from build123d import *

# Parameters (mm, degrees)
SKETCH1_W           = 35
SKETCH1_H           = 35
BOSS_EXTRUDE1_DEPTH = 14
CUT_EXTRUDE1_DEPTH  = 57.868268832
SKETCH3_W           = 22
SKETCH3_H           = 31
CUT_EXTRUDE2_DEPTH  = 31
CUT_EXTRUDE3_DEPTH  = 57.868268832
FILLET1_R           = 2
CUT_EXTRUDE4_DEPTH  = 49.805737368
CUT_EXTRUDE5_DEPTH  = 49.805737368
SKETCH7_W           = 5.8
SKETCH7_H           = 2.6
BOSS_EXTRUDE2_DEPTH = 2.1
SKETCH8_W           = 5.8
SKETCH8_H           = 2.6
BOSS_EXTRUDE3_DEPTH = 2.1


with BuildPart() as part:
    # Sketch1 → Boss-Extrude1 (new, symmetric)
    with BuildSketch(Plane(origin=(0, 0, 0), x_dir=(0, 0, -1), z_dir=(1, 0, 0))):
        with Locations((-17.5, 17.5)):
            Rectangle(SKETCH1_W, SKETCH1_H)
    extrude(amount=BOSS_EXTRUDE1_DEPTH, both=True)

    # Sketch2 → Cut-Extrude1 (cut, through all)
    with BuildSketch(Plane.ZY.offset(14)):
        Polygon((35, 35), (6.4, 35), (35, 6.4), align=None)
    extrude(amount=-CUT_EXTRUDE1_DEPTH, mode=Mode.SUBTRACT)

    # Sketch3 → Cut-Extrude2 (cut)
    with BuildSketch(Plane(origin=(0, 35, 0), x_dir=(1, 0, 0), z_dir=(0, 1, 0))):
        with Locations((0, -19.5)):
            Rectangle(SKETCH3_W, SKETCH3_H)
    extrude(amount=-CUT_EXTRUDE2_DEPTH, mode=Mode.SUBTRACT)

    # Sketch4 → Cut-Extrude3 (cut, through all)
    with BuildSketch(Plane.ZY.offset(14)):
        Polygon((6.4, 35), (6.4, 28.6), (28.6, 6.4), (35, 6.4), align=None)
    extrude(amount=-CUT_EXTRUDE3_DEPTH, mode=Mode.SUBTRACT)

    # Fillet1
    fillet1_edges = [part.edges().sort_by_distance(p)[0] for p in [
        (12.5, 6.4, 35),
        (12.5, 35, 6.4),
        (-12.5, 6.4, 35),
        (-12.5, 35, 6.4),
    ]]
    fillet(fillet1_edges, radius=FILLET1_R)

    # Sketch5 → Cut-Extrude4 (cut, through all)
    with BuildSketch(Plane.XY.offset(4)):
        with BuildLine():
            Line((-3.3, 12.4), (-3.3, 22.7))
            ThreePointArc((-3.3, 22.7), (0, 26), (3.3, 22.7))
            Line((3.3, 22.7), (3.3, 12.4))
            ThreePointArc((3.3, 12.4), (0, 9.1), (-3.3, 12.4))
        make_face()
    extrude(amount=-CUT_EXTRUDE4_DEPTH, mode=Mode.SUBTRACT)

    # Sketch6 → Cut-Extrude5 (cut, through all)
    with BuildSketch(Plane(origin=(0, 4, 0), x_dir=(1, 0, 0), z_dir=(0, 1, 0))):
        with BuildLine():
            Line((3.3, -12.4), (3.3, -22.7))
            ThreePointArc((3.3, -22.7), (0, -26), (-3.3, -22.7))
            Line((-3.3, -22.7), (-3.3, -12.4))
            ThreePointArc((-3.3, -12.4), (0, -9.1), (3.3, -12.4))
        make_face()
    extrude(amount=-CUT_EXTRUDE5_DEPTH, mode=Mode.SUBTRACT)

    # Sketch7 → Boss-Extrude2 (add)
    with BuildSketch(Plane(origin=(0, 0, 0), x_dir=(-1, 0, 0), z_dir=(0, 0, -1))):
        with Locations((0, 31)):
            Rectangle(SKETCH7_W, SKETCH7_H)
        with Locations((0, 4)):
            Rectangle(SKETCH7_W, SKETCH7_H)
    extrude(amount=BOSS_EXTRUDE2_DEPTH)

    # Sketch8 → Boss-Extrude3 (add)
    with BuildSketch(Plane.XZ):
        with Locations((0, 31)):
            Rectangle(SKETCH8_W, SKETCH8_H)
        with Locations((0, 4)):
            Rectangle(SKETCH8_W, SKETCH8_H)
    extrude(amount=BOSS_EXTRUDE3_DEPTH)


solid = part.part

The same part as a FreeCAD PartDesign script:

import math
import FreeCAD as App
import Part
import Sketcher

V = App.Vector


def edges_at(feature, points):
    """Names of the edges that pass closest to the given points."""
    edges = feature.Shape.Edges
    near = lambda p: min(range(len(edges)), key=lambda i: edges[i].distToShape(Part.Vertex(*p))[0])
    return sorted({f"Edge{near(p) + 1}" for p in points})

doc = App.newDocument("Part")
params = doc.addObject("Spreadsheet::Sheet", "Params")
for row, (alias, value) in enumerate([
    ("sketch1_width", "35 mm"),
    ("pad1_length", "28 mm"),
    ("sketch2_width", "28.6 mm"),
    ("sketch3_width", "22 mm"),
    ("sketch3_height", "31 mm"),
    ("pocket2_length", "31 mm"),
    ("sketch4_width", "6.4 mm"),
    ("fillet_radius", "2 mm"),
    ("sketch5_radius", "3.3 mm"),
    ("sketch5_height", "10.3 mm"),
    ("sketch6_radius", "3.3 mm"),
    ("sketch6_height", "10.3 mm"),
    ("sketch7_width", "5.8 mm"),
    ("sketch7_height", "2.6 mm"),
    ("pad2_length", "2.1 mm"),
    ("sketch8_width", "5.8 mm"),
    ("sketch8_height", "2.6 mm"),
    ("pad3_length", "2.1 mm"),
], start=1):
    params.set(f"A{row}", alias)
    params.set(f"B{row}", "=" + value)
    params.setAlias(f"B{row}", alias)

body = doc.addObject("PartDesign::Body", "Body")

# Sketch on YZ plane
sketch1 = doc.addObject("Sketcher::SketchObject", "Sketch")
body.addObject(sketch1)
sketch1.AttachmentSupport = (doc.YZ_Plane, [""])
sketch1.MapMode = "FlatFace"
sketch1.addGeometry(Part.LineSegment(V(35, 35, 0), V(0, 35, 0)), False)
sketch1.addGeometry(Part.LineSegment(V(0, 35, 0), V(0, 0, 0)), False)
sketch1.addGeometry(Part.LineSegment(V(0, 0, 0), V(35, 0, 0)), False)
sketch1.addGeometry(Part.LineSegment(V(35, 0, 0), V(35, 35, 0)), False)
sketch1.addConstraint(Sketcher.Constraint("Coincident", 0, 2, 1, 1))
sketch1.addConstraint(Sketcher.Constraint("Coincident", 1, 2, 2, 1))
sketch1.addConstraint(Sketcher.Constraint("Coincident", 2, 2, 3, 1))
sketch1.addConstraint(Sketcher.Constraint("Coincident", 3, 2, 0, 1))
sketch1.addConstraint(Sketcher.Constraint("Horizontal", 0))
sketch1.addConstraint(Sketcher.Constraint("Vertical", 1))
sketch1.addConstraint(Sketcher.Constraint("Horizontal", 2))
sketch1.addConstraint(Sketcher.Constraint("Vertical", 3))
sketch1.addConstraint(Sketcher.Constraint("Coincident", 1, 2, -1, 1))
sketch1.addConstraint(Sketcher.Constraint("Equal", 2, 1))
sketch1.addConstraint(Sketcher.Constraint("DistanceX", 0, 2, 0, 1, 35.0))
sketch1.setExpression("Constraints[10]", "Params.sketch1_width")
pad1 = doc.addObject("PartDesign::Pad", "Pad")
body.addObject(pad1)
pad1.Profile = sketch1
pad1.setExpression("Length", "Params.pad1_length")
pad1.Midplane = True

# Sketch on YZ plane
sketch2 = doc.addObject("Sketcher::SketchObject", "Sketch001")
body.addObject(sketch2)
sketch2.AttachmentSupport = (doc.YZ_Plane, [""])
sketch2.MapMode = "FlatFace"
sketch2.AttachmentOffset = App.Placement(V(0, 0, -14), App.Rotation())
sketch2.addGeometry(Part.LineSegment(V(35, 35, 0), V(35, 6.4, 0)), False)
sketch2.addGeometry(Part.LineSegment(V(35, 6.4, 0), V(6.4, 35, 0)), False)
sketch2.addGeometry(Part.LineSegment(V(6.4, 35, 0), V(35, 35, 0)), False)
sketch2.addConstraint(Sketcher.Constraint("Coincident", 0, 2, 1, 1))
sketch2.addConstraint(Sketcher.Constraint("Coincident", 1, 2, 2, 1))
sketch2.addConstraint(Sketcher.Constraint("Coincident", 2, 2, 0, 1))
sketch2.addConstraint(Sketcher.Constraint("Vertical", 0))
sketch2.addConstraint(Sketcher.Constraint("Horizontal", 2))
sketch2.addConstraint(Sketcher.Constraint("Equal", 2, 0))
sketch2.addConstraint(Sketcher.Constraint("DistanceX", 2, 1, 2, 2, 28.6))
sketch2.addConstraint(Sketcher.Constraint("DistanceX", -1, 1, 0, 2, 35.0))
sketch2.addConstraint(Sketcher.Constraint("DistanceY", -1, 1, 1, 2, 35.0))
sketch2.setExpression("Constraints[6]", "Params.sketch2_width")
pocket1 = doc.addObject("PartDesign::Pocket", "Pocket")
body.addObject(pocket1)
pocket1.Profile = sketch2
pocket1.Type = "ThroughAll"
pocket1.Reversed = True

# Sketch on XZ plane
sketch3 = doc.addObject("Sketcher::SketchObject", "Sketch002")
body.addObject(sketch3)
sketch3.AttachmentSupport = (doc.XZ_Plane, [""])
sketch3.MapMode = "FlatFace"
sketch3.AttachmentOffset = App.Placement(V(0, 0, -35), App.Rotation())
sketch3.addGeometry(Part.LineSegment(V(-11, 4, 0), V(-11, 35, 0)), False)
sketch3.addGeometry(Part.LineSegment(V(-11, 35, 0), V(11, 35, 0)), False)
sketch3.addGeometry(Part.LineSegment(V(11, 35, 0), V(11, 4, 0)), False)
sketch3.addGeometry(Part.LineSegment(V(11, 4, 0), V(-11, 4, 0)), False)
sketch3.addConstraint(Sketcher.Constraint("Coincident", 0, 2, 1, 1))
sketch3.addConstraint(Sketcher.Constraint("Coincident", 1, 2, 2, 1))
sketch3.addConstraint(Sketcher.Constraint("Coincident", 2, 2, 3, 1))
sketch3.addConstraint(Sketcher.Constraint("Coincident", 3, 2, 0, 1))
sketch3.addConstraint(Sketcher.Constraint("Vertical", 0))
sketch3.addConstraint(Sketcher.Constraint("Horizontal", 1))
sketch3.addConstraint(Sketcher.Constraint("Vertical", 2))
sketch3.addConstraint(Sketcher.Constraint("Horizontal", 3))
sketch3.addConstraint(Sketcher.Constraint("DistanceX", 1, 1, 1, 2, 22.0))
sketch3.addConstraint(Sketcher.Constraint("DistanceY", 0, 1, 0, 2, 31.0))
sketch3.addConstraint(Sketcher.Constraint("DistanceX", 0, 2, -1, 1, 11.0))
sketch3.addConstraint(Sketcher.Constraint("DistanceY", -1, 1, 0, 2, 35.0))
sketch3.setExpression("Constraints[8]", "Params.sketch3_width")
sketch3.setExpression("Constraints[9]", "Params.sketch3_height")
pocket2 = doc.addObject("PartDesign::Pocket", "Pocket001")
body.addObject(pocket2)
pocket2.Profile = sketch3
pocket2.setExpression("Length", "Params.pocket2_length")
pocket2.Reversed = True

# Sketch on YZ plane
sketch4 = doc.addObject("Sketcher::SketchObject", "Sketch003")
body.addObject(sketch4)
sketch4.AttachmentSupport = (doc.YZ_Plane, [""])
sketch4.MapMode = "FlatFace"
sketch4.AttachmentOffset = App.Placement(V(0, 0, -14), App.Rotation())
sketch4.addGeometry(Part.LineSegment(V(35, 6.4, 0), V(28.6, 6.4, 0)), False)
sketch4.addGeometry(Part.LineSegment(V(28.6, 6.4, 0), V(6.4, 28.6, 0)), False)
sketch4.addGeometry(Part.LineSegment(V(6.4, 28.6, 0), V(6.4, 35, 0)), False)
sketch4.addGeometry(Part.LineSegment(V(6.4, 35, 0), V(35, 6.4, 0)), False)
sketch4.addConstraint(Sketcher.Constraint("Coincident", 0, 2, 1, 1))
sketch4.addConstraint(Sketcher.Constraint("Coincident", 1, 2, 2, 1))
sketch4.addConstraint(Sketcher.Constraint("Coincident", 2, 2, 3, 1))
sketch4.addConstraint(Sketcher.Constraint("Coincident", 3, 2, 0, 1))
sketch4.addConstraint(Sketcher.Constraint("Horizontal", 0))
sketch4.addConstraint(Sketcher.Constraint("Vertical", 2))
sketch4.addConstraint(Sketcher.Constraint("Parallel", 1, 3))
sketch4.addConstraint(Sketcher.Constraint("Equal", 0, 2))
sketch4.addConstraint(Sketcher.Constraint("DistanceX", 0, 2, 0, 1, 6.4))
sketch4.addConstraint(Sketcher.Constraint("DistanceY", -1, 1, 2, 2, 35.0))
sketch4.addConstraint(Sketcher.Constraint("DistanceX", -1, 1, 3, 2, 35.0))
sketch4.addConstraint(Sketcher.Constraint("DistanceY", -1, 1, 0, 2, 6.4))
sketch4.setExpression("Constraints[8]", "Params.sketch4_width")
pocket3 = doc.addObject("PartDesign::Pocket", "Pocket002")
body.addObject(pocket3)
pocket3.Profile = sketch4
pocket3.Type = "ThroughAll"
pocket3.Reversed = True
doc.recompute()

fillet = doc.addObject("PartDesign::Fillet", "Fillet")
body.addObject(fillet)
fillet.Base = (pocket3, edges_at(pocket3, [
    (12.5, 6.4, 35),
    (12.5, 35, 6.4),
    (-12.5, 6.4, 35),
    (-12.5, 35, 6.4),
]))
fillet.setExpression("Radius", "Params.fillet_radius")

# Sketch on XY plane
sketch5 = doc.addObject("Sketcher::SketchObject", "Sketch004")
body.addObject(sketch5)
sketch5.AttachmentSupport = (doc.XY_Plane, [""])
sketch5.MapMode = "FlatFace"
sketch5.AttachmentOffset = App.Placement(V(0, 0, 4), App.Rotation())
sketch5.addGeometry(Part.LineSegment(V(-3.3, 22.7, 0), V(-3.3, 12.4, 0)), False)
sketch5.addGeometry(Part.ArcOfCircle(Part.Circle(V(0, 12.4, 0), V(0, 0, 1), 3.3), math.radians(180), math.radians(360)), False)
sketch5.addGeometry(Part.LineSegment(V(3.3, 12.4, 0), V(3.3, 22.7, 0)), False)
sketch5.addGeometry(Part.ArcOfCircle(Part.Circle(V(0, 22.7, 0), V(0, 0, 1), 3.3), math.radians(0), math.radians(180)), False)
sketch5.addConstraint(Sketcher.Constraint("Tangent", 0, 2, 1, 1))
sketch5.addConstraint(Sketcher.Constraint("Tangent", 1, 2, 2, 1))
sketch5.addConstraint(Sketcher.Constraint("Tangent", 2, 2, 3, 1))
sketch5.addConstraint(Sketcher.Constraint("Tangent", 3, 2, 0, 1))
sketch5.addConstraint(Sketcher.Constraint("Vertical", 0))
sketch5.addConstraint(Sketcher.Constraint("Vertical", 2))
sketch5.addConstraint(Sketcher.Constraint("PointOnObject", 1, 3, -2))
sketch5.addConstraint(Sketcher.Constraint("Radius", 1, 3.3))
sketch5.addConstraint(Sketcher.Constraint("DistanceY", 0, 2, 0, 1, 10.3))
sketch5.addConstraint(Sketcher.Constraint("DistanceY", -1, 1, 1, 3, 12.4))
sketch5.setExpression("Constraints[7]", "Params.sketch5_radius")
sketch5.setExpression("Constraints[8]", "Params.sketch5_height")
pocket4 = doc.addObject("PartDesign::Pocket", "Pocket003")
body.addObject(pocket4)
pocket4.Profile = sketch5
pocket4.Type = "ThroughAll"

# Sketch on XZ plane
sketch6 = doc.addObject("Sketcher::SketchObject", "Sketch005")
body.addObject(sketch6)
sketch6.AttachmentSupport = (doc.XZ_Plane, [""])
sketch6.MapMode = "FlatFace"
sketch6.AttachmentOffset = App.Placement(V(0, 0, -4), App.Rotation())
sketch6.addGeometry(Part.LineSegment(V(3.3, 22.7, 0), V(3.3, 12.4, 0)), False)
sketch6.addGeometry(Part.ArcOfCircle(Part.Circle(V(0, 12.4, 0), V(0, 0, 1), 3.3), math.radians(180), math.radians(360)), False)
sketch6.addGeometry(Part.LineSegment(V(-3.3, 12.4, 0), V(-3.3, 22.7, 0)), False)
sketch6.addGeometry(Part.ArcOfCircle(Part.Circle(V(0, 22.7, 0), V(0, 0, 1), 3.3), math.radians(0), math.radians(180)), False)
sketch6.addConstraint(Sketcher.Constraint("Tangent", 0, 2, 1, 2))
sketch6.addConstraint(Sketcher.Constraint("Tangent", 1, 1, 2, 1))
sketch6.addConstraint(Sketcher.Constraint("Tangent", 2, 2, 3, 2))
sketch6.addConstraint(Sketcher.Constraint("Tangent", 3, 1, 0, 1))
sketch6.addConstraint(Sketcher.Constraint("Vertical", 0))
sketch6.addConstraint(Sketcher.Constraint("Vertical", 2))
sketch6.addConstraint(Sketcher.Constraint("PointOnObject", 1, 3, -2))
sketch6.addConstraint(Sketcher.Constraint("Radius", 1, 3.3))
sketch6.addConstraint(Sketcher.Constraint("DistanceY", 0, 2, 0, 1, 10.3))
sketch6.addConstraint(Sketcher.Constraint("DistanceY", -1, 1, 1, 3, 12.4))
sketch6.setExpression("Constraints[7]", "Params.sketch6_radius")
sketch6.setExpression("Constraints[8]", "Params.sketch6_height")
pocket5 = doc.addObject("PartDesign::Pocket", "Pocket004")
body.addObject(pocket5)
pocket5.Profile = sketch6
pocket5.Type = "ThroughAll"
pocket5.Reversed = True

# Sketch on XY plane
sketch7 = doc.addObject("Sketcher::SketchObject", "Sketch006")
body.addObject(sketch7)
sketch7.AttachmentSupport = (doc.XY_Plane, [""])
sketch7.MapMode = "FlatFace"
sketch7.addGeometry(Part.LineSegment(V(2.9, 32.3, 0), V(2.9, 29.7, 0)), False)
sketch7.addGeometry(Part.LineSegment(V(2.9, 29.7, 0), V(-2.9, 29.7, 0)), False)
sketch7.addGeometry(Part.LineSegment(V(-2.9, 29.7, 0), V(-2.9, 32.3, 0)), False)
sketch7.addGeometry(Part.LineSegment(V(-2.9, 32.3, 0), V(2.9, 32.3, 0)), False)
sketch7.addGeometry(Part.LineSegment(V(2.9, 5.3, 0), V(2.9, 2.7, 0)), False)
sketch7.addGeometry(Part.LineSegment(V(2.9, 2.7, 0), V(-2.9, 2.7, 0)), False)
sketch7.addGeometry(Part.LineSegment(V(-2.9, 2.7, 0), V(-2.9, 5.3, 0)), False)
sketch7.addGeometry(Part.LineSegment(V(-2.9, 5.3, 0), V(2.9, 5.3, 0)), False)
sketch7.addConstraint(Sketcher.Constraint("Coincident", 0, 2, 1, 1))
sketch7.addConstraint(Sketcher.Constraint("Coincident", 1, 2, 2, 1))
sketch7.addConstraint(Sketcher.Constraint("Coincident", 2, 2, 3, 1))
sketch7.addConstraint(Sketcher.Constraint("Coincident", 3, 2, 0, 1))
sketch7.addConstraint(Sketcher.Constraint("Coincident", 4, 2, 5, 1))
sketch7.addConstraint(Sketcher.Constraint("Coincident", 5, 2, 6, 1))
sketch7.addConstraint(Sketcher.Constraint("Coincident", 6, 2, 7, 1))
sketch7.addConstraint(Sketcher.Constraint("Coincident", 7, 2, 4, 1))
sketch7.addConstraint(Sketcher.Constraint("Vertical", 0))
sketch7.addConstraint(Sketcher.Constraint("Horizontal", 1))
sketch7.addConstraint(Sketcher.Constraint("Vertical", 2))
sketch7.addConstraint(Sketcher.Constraint("Horizontal", 3))
sketch7.addConstraint(Sketcher.Constraint("Vertical", 4))
sketch7.addConstraint(Sketcher.Constraint("Horizontal", 5))
sketch7.addConstraint(Sketcher.Constraint("Vertical", 6))
sketch7.addConstraint(Sketcher.Constraint("Horizontal", 7))
sketch7.addConstraint(Sketcher.Constraint("Vertical", 3, 2, 4, 2))
sketch7.addConstraint(Sketcher.Constraint("Vertical", 2, 2, 5, 2))
sketch7.addConstraint(Sketcher.Constraint("Equal", 2, 4))
sketch7.addConstraint(Sketcher.Constraint("DistanceX", 1, 2, 1, 1, 5.8))
sketch7.addConstraint(Sketcher.Constraint("DistanceY", 0, 2, 0, 1, 2.6))
sketch7.addConstraint(Sketcher.Constraint("DistanceY", 4, 2, 0, 2, 27.0))
sketch7.addConstraint(Sketcher.Constraint("DistanceX", -1, 1, 0, 2, 2.9))
sketch7.addConstraint(Sketcher.Constraint("DistanceY", -1, 1, 0, 2, 29.7))
sketch7.setExpression("Constraints[19]", "Params.sketch7_width")
sketch7.setExpression("Constraints[20]", "Params.sketch7_height")
pad2 = doc.addObject("PartDesign::Pad", "Pad001")
body.addObject(pad2)
pad2.Profile = sketch7
pad2.setExpression("Length", "Params.pad2_length")
pad2.Reversed = True

# Sketch on XZ plane
sketch8 = doc.addObject("Sketcher::SketchObject", "Sketch007")
body.addObject(sketch8)
sketch8.AttachmentSupport = (doc.XZ_Plane, [""])
sketch8.MapMode = "FlatFace"
sketch8.addGeometry(Part.LineSegment(V(-2.9, 32.3, 0), V(-2.9, 29.7, 0)), False)
sketch8.addGeometry(Part.LineSegment(V(-2.9, 29.7, 0), V(2.9, 29.7, 0)), False)
sketch8.addGeometry(Part.LineSegment(V(2.9, 29.7, 0), V(2.9, 32.3, 0)), False)
sketch8.addGeometry(Part.LineSegment(V(2.9, 32.3, 0), V(-2.9, 32.3, 0)), False)
sketch8.addGeometry(Part.LineSegment(V(-2.9, 5.3, 0), V(-2.9, 2.7, 0)), False)
sketch8.addGeometry(Part.LineSegment(V(-2.9, 2.7, 0), V(2.9, 2.7, 0)), False)
sketch8.addGeometry(Part.LineSegment(V(2.9, 2.7, 0), V(2.9, 5.3, 0)), False)
sketch8.addGeometry(Part.LineSegment(V(2.9, 5.3, 0), V(-2.9, 5.3, 0)), False)
sketch8.addConstraint(Sketcher.Constraint("Coincident", 0, 2, 1, 1))
sketch8.addConstraint(Sketcher.Constraint("Coincident", 1, 2, 2, 1))
sketch8.addConstraint(Sketcher.Constraint("Coincident", 2, 2, 3, 1))
sketch8.addConstraint(Sketcher.Constraint("Coincident", 3, 2, 0, 1))
sketch8.addConstraint(Sketcher.Constraint("Coincident", 4, 2, 5, 1))
sketch8.addConstraint(Sketcher.Constraint("Coincident", 5, 2, 6, 1))
sketch8.addConstraint(Sketcher.Constraint("Coincident", 6, 2, 7, 1))
sketch8.addConstraint(Sketcher.Constraint("Coincident", 7, 2, 4, 1))
sketch8.addConstraint(Sketcher.Constraint("Vertical", 0))
sketch8.addConstraint(Sketcher.Constraint("Horizontal", 1))
sketch8.addConstraint(Sketcher.Constraint("Vertical", 2))
sketch8.addConstraint(Sketcher.Constraint("Horizontal", 3))
sketch8.addConstraint(Sketcher.Constraint("Vertical", 4))
sketch8.addConstraint(Sketcher.Constraint("Horizontal", 5))
sketch8.addConstraint(Sketcher.Constraint("Vertical", 6))
sketch8.addConstraint(Sketcher.Constraint("Horizontal", 7))
sketch8.addConstraint(Sketcher.Constraint("Vertical", 3, 2, 4, 2))
sketch8.addConstraint(Sketcher.Constraint("Vertical", 2, 2, 5, 2))
sketch8.addConstraint(Sketcher.Constraint("Equal", 2, 4))
sketch8.addConstraint(Sketcher.Constraint("DistanceX", 1, 1, 1, 2, 5.8))
sketch8.addConstraint(Sketcher.Constraint("DistanceY", 0, 2, 0, 1, 2.6))
sketch8.addConstraint(Sketcher.Constraint("DistanceY", 4, 2, 0, 2, 27.0))
sketch8.addConstraint(Sketcher.Constraint("DistanceX", 0, 2, -1, 1, 2.9))
sketch8.addConstraint(Sketcher.Constraint("DistanceY", -1, 1, 0, 2, 29.7))
sketch8.setExpression("Constraints[19]", "Params.sketch8_width")
sketch8.setExpression("Constraints[20]", "Params.sketch8_height")
pad3 = doc.addObject("PartDesign::Pad", "Pad002")
body.addObject(pad3)
pad3.Profile = sketch8
pad3.setExpression("Length", "Params.pad3_length")

doc.recompute()
